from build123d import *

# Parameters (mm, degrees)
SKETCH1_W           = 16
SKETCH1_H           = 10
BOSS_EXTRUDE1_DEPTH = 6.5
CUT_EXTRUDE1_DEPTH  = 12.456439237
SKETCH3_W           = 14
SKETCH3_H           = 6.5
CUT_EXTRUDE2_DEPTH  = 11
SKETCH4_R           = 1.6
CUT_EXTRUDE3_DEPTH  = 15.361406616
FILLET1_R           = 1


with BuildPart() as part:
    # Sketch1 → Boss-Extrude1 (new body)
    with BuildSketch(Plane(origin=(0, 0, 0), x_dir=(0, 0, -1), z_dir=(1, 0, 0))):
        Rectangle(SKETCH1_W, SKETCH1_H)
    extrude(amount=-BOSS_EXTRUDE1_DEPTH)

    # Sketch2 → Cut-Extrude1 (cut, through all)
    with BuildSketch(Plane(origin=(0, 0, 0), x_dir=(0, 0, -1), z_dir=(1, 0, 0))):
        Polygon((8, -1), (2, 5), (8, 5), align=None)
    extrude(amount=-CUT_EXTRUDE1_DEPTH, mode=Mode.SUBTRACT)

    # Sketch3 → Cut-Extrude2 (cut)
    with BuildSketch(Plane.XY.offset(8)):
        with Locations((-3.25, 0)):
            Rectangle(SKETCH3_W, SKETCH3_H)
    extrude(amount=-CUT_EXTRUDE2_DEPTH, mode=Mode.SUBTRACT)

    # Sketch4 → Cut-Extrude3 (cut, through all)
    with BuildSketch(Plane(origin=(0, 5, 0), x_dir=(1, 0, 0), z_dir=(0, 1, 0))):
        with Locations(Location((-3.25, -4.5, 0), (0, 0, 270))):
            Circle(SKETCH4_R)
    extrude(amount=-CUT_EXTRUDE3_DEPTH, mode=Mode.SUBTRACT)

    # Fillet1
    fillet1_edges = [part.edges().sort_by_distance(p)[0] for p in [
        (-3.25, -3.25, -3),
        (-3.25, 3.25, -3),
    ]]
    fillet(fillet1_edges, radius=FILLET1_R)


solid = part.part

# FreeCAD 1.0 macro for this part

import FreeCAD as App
import Part
import Sketcher
from FreeCAD import Vector
Q = App.Units.Quantity


def edges_at(feature, points):
    """Names of the edges that pass closest to the given points."""
    edges = feature.Shape.Edges
    near = lambda p: min(range(len(edges)), key=lambda i: edges[i].distToShape(Part.Vertex(*p))[0])
    return sorted({f"Edge{near(p) + 1}" for p in points})


def add_polygon(sketch, points):
    """Adds a closed chain of lines whose ends are joined by coincident constraints."""
    first, n = sketch.GeometryCount, len(points)
    for a, b in zip(points, points[1:] + points[:1]):
        sketch.addGeometry(Part.LineSegment(App.Vector(*a, 0), App.Vector(*b, 0)), False)
    for i in range(n):
        sketch.addConstraint(Sketcher.Constraint("Coincident", first + i, 2, first + (i + 1) % n, 1))

doc = App.newDocument("Part")
body = doc.addObject("PartDesign::Body", "Body")

sketch1 = body.newObject("Sketcher::SketchObject", "Sketch")
sketch1.AttachmentSupport = (doc.getObject("YZ_Plane"), [""])
sketch1.MapMode = "FlatFace"
add_polygon(sketch1, [(5, 8), (-5, 8), (-5, -8), (5, -8)])
sketch1.addConstraint([
    Sketcher.Constraint("Horizontal", 0),
    Sketcher.Constraint("Vertical", 1),
    Sketcher.Constraint("Horizontal", 2),
    Sketcher.Constraint("Vertical", 3),
    Sketcher.Constraint("Symmetric", 0, 2, 2, 2, -1, 1),
    Sketcher.Constraint("DistanceX", 0, 2, 0, 1, Q("10 mm")),
    Sketcher.Constraint("DistanceY", 1, 2, 1, 1, Q("16 mm")),
])
pad1 = body.newObject("PartDesign::Pad", "Pad")
pad1.Profile = sketch1
pad1.Length = 6.5
pad1.Reversed = True

sketch2 = body.newObject("Sketcher::SketchObject", "Sketch001")
sketch2.AttachmentSupport = (doc.getObject("YZ_Plane"), [""])
sketch2.MapMode = "FlatFace"
add_polygon(sketch2, [(5, -2), (-1, -8), (5, -8)])
sketch2.addConstraint([
    Sketcher.Constraint("Horizontal", 1),
    Sketcher.Constraint("Vertical", 2),
    Sketcher.Constraint("Equal", 1, 2),
    Sketcher.Constraint("DistanceX", 1, 1, 1, 2, Q("6 mm")),
    Sketcher.Constraint("DistanceX", 0, 2, -1, 1, Q("1 mm")),
    Sketcher.Constraint("DistanceY", 0, 2, -1, 1, Q("8 mm")),
])
pocket1 = body.newObject("PartDesign::Pocket", "Pocket")
pocket1.Profile = sketch2
pocket1.Type = "ThroughAll"

sketch3 = body.newObject("Sketcher::SketchObject", "Sketch002")
sketch3.AttachmentSupport = (doc.getObject("XY_Plane"), [""])
sketch3.MapMode = "FlatFace"
sketch3.AttachmentOffset = App.Placement(Vector(0, 0, 8), App.Rotation())
add_polygon(sketch3, [(-10.25, 3.25), (-10.25, -3.25), (3.75, -3.25), (3.75, 3.25)])
sketch3.addConstraint([
    Sketcher.Constraint("Vertical", 0),
    Sketcher.Constraint("Horizontal", 1),
    Sketcher.Constraint("Vertical", 2),
    Sketcher.Constraint("Horizontal", 3),
    Sketcher.Constraint("DistanceX", 1, 1, 1, 2, Q("14 mm")),
    Sketcher.Constraint("DistanceY", 0, 2, 0, 1, Q("6.5 mm")),
    Sketcher.Constraint("DistanceX", 0, 2, -1, 1, Q("10.25 mm")),
    Sketcher.Constraint("DistanceY", 0, 2, -1, 1, Q("3.25 mm")),
])
pocket2 = body.newObject("PartDesign::Pocket", "Pocket001")
pocket2.Profile = sketch3
pocket2.Length = 11

sketch4 = body.newObject("Sketcher::SketchObject", "Sketch003")
sketch4.AttachmentSupport = (doc.getObject("XZ_Plane"), [""])
sketch4.MapMode = "FlatFace"
sketch4.AttachmentOffset = App.Placement(Vector(0, 0, -5), App.Rotation())
sketch4.addGeometry(Part.Circle(Vector(-3.25, 4.5, 0), Vector(0, 0, 1), 1.6), False)
sketch4.addConstraint([
    Sketcher.Constraint("Diameter", 0, Q("3.2 mm")),
    Sketcher.Constraint("DistanceY", -1, 1, 0, 3, Q("4.5 mm")),
    Sketcher.Constraint("DistanceX", 0, 3, -1, 1, Q("3.25 mm")),
])
pocket3 = body.newObject("PartDesign::Pocket", "Pocket002")
pocket3.Profile = sketch4
pocket3.Type = "ThroughAll"
pocket3.Reversed = True
doc.recompute()

fillet = body.newObject("PartDesign::Fillet", "Fillet")
fillet.Base = (pocket3, edges_at(pocket3, [(-3.25, -3.25, -3), (-3.25, 3.25, -3)]))
fillet.Radius = 1

doc.recompute()
